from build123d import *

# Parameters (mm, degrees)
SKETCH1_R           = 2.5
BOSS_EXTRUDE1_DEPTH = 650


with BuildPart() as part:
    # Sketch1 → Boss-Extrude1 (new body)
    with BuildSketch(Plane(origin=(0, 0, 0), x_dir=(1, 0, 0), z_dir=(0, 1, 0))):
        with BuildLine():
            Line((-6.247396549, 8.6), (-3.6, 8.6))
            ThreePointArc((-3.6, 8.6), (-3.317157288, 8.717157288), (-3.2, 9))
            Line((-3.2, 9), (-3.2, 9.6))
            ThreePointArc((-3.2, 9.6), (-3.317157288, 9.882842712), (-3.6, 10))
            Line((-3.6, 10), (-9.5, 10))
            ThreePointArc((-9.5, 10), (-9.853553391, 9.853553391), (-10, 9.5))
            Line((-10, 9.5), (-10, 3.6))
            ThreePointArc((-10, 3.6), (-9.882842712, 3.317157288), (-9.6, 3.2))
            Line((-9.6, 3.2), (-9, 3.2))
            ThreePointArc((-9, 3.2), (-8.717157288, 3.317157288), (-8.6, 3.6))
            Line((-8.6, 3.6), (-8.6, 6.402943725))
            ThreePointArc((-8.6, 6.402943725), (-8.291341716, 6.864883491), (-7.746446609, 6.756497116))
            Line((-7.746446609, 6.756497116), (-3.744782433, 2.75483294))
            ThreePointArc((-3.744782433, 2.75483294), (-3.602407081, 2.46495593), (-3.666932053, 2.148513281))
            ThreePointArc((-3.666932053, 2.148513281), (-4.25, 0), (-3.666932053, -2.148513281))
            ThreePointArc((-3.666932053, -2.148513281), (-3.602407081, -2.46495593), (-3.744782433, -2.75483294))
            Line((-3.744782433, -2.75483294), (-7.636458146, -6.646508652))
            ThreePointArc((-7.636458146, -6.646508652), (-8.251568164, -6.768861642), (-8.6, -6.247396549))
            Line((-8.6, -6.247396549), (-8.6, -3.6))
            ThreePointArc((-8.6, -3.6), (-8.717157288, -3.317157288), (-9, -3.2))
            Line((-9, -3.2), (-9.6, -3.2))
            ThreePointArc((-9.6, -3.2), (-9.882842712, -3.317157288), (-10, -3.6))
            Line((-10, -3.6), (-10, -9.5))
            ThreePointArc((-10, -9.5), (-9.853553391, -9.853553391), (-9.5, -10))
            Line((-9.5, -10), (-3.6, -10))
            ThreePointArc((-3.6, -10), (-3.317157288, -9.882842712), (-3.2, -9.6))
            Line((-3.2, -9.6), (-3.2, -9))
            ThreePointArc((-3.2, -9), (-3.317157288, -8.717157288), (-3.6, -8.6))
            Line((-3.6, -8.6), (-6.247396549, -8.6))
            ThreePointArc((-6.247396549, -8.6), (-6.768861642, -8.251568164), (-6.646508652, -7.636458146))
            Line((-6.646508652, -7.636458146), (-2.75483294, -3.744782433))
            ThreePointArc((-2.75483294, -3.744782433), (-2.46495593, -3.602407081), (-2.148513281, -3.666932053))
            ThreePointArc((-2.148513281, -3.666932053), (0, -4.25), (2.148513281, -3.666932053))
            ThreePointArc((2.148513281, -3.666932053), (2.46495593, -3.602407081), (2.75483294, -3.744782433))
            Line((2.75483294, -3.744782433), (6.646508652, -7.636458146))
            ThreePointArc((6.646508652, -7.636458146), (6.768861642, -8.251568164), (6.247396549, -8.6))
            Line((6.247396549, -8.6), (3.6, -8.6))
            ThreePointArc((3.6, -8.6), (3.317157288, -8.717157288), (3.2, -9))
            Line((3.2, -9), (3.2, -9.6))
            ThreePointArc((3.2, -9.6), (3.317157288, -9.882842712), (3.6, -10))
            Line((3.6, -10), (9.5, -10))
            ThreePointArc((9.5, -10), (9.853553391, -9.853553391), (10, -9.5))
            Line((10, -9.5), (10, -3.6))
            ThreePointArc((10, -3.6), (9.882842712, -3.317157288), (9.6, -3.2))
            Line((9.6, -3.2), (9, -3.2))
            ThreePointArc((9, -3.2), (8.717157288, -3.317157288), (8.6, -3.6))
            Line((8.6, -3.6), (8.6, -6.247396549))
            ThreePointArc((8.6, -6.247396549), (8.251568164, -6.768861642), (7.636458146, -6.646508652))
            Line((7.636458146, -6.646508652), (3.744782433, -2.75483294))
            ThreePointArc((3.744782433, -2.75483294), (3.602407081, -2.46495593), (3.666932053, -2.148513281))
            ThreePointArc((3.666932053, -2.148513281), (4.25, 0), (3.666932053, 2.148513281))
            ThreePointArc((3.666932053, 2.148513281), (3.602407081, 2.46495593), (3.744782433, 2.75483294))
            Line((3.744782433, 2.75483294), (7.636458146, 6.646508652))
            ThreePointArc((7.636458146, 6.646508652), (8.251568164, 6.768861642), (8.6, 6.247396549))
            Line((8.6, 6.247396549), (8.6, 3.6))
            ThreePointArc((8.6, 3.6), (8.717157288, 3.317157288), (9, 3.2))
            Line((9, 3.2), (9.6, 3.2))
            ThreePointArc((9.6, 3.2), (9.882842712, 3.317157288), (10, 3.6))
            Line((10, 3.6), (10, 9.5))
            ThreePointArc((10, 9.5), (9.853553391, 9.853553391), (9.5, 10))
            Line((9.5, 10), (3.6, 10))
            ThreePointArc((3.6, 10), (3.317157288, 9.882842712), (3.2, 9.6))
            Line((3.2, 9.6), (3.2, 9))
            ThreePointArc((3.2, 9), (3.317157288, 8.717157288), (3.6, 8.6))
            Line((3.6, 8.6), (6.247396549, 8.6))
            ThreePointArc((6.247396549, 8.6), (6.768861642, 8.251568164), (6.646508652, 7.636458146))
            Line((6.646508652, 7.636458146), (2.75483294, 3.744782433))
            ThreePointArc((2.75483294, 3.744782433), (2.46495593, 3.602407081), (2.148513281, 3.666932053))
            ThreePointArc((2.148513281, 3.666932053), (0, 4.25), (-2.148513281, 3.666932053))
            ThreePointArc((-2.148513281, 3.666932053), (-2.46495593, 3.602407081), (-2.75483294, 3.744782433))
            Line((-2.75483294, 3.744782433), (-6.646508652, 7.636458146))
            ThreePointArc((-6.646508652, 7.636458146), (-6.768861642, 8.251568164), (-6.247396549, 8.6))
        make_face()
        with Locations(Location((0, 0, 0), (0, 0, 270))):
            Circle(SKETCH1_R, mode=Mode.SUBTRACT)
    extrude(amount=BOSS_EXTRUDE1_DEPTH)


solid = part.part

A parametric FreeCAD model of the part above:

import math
import FreeCAD as App
import Part
import Sketcher
from FreeCAD import Vector
Q = App.Units.Quantity

doc = App.newDocument("Part")
params = doc.addObject("Spreadsheet::Sheet", "Params")
for row, (alias, value) in enumerate([
    ("sketch1_diameter", "5 mm"),
    ("sketch1_radius", "0.4 mm"),
    ("sketch1_radius2", "0.5 mm"),
    ("sketch1_radius3", "4.25 mm"),
    ("sketch1_width", "5.9 mm"),
    ("pad1_length", "650 mm"),
], start=1):
    params.set(f"A{row}", alias)
    params.set(f"B{row}", "=" + value)
    params.setAlias(f"B{row}", alias)

body = doc.addObject("PartDesign::Body", "Body")

# Sketch on XZ plane
sketch1 = doc.addObject("Sketcher::SketchObject", "Sketch")
body.addObject(sketch1)
sketch1.AttachmentSupport = (doc.XZ_Plane, [""])
sketch1.MapMode = "FlatFace"
sketch1.addGeometry(Part.LineSegment(Vector(-6.25, -8.6, 0), Vector(-3.6, -8.6, 0)), False)
sketch1.addGeometry(Part.ArcOfCircle(Part.Circle(Vector(-3.6, -9, 0), Vector(0, 0, 1), 0.4), math.radians(0), math.radians(90)), False)
sketch1.addGeometry(Part.LineSegment(Vector(-3.2, -9, 0), Vector(-3.2, -9.6, 0)), False)
sketch1.addGeometry(Part.ArcOfCircle(Part.Circle(Vector(-3.6, -9.6, 0), Vector(0, 0, 1), 0.4), math.radians(-90), math.radians(0)), False)
sketch1.addGeometry(Part.LineSegment(Vector(-3.6, -10, 0), Vector(-9.5, -10, 0)), False)
sketch1.addGeometry(Part.ArcOfCircle(Part.Circle(Vector(-9.5, -9.5, 0), Vector(0, 0, 1), 0.5), math.radians(180), math.radians(270)), False)
sketch1.addGeometry(Part.LineSegment(Vector(-10, -9.5, 0), Vector(-10, -3.6, 0)), False)
sketch1.addGeometry(Part.ArcOfCircle(Part.Circle(Vector(-9.6, -3.6, 0), Vector(0, 0, 1), 0.4), math.radians(90), math.radians(180)), False)
sketch1.addGeometry(Part.LineSegment(Vector(-9.6, -3.2, 0), Vector(-9, -3.2, 0)), False)
sketch1.addGeometry(Part.ArcOfCircle(Part.Circle(Vector(-9, -3.6, 0), Vector(0, 0, 1), 0.4), math.radians(0), math.radians(90)), False)
sketch1.addGeometry(Part.LineSegment(Vector(-8.6, -3.6, 0), Vector(-8.6, -6.4, 0)), False)
sketch1.addGeometry(Part.ArcOfCircle(Part.Circle(Vector(-8.1, -6.4, 0), Vector(0, 0, 1), 0.5), math.radians(-180), math.radians(-45)), False)
sketch1.addGeometry(Part.LineSegment(Vector(-7.75, -6.76, 0), Vector(-3.74, -2.75, 0)), False)
sketch1.addGeometry(Part.ArcOfCircle(Part.Circle(Vector(-4.1, -2.4, 0), Vector(0, 0, 1), 0.5), math.radians(-45), math.radians(30)), False)
sketch1.addGeometry(Part.ArcOfCircle(Part.Circle(Vector(0, 0, 0), Vector(0, 0, 1), 4.25), math.radians(150), math.radians(210)), False)
sketch1.addGeometry(Part.ArcOfCircle(Part.Circle(Vector(-4.1, 2.4, 0), Vector(0, 0, 1), 0.5), math.radians(-30), math.radians(45)), False)
sketch1.addGeometry(Part.LineSegment(Vector(-3.74, 2.75, 0), Vector(-7.64, 6.65, 0)), False)
sketch1.addGeometry(Part.ArcOfCircle(Part.Circle(Vector(-8.04, 6.25, 0), Vector(0, 0, 1), 0.56), math.radians(45), math.radians(180)), False)
sketch1.addGeometry(Part.LineSegment(Vector(-8.6, 6.25, 0), Vector(-8.6, 3.6, 0)), False)
sketch1.addGeometry(Part.ArcOfCircle(Part.Circle(Vector(-9, 3.6, 0), Vector(0, 0, 1), 0.4), math.radians(-90), math.radians(0)), False)
sketch1.addGeometry(Part.LineSegment(Vector(-9, 3.2, 0), Vector(-9.6, 3.2, 0)), False)
sketch1.addGeometry(Part.ArcOfCircle(Part.Circle(Vector(-9.6, 3.6, 0), Vector(0, 0, 1), 0.4), math.radians(-180), math.radians(-90)), False)
sketch1.addGeometry(Part.LineSegment(Vector(-10, 3.6, 0), Vector(-10, 9.5, 0)), False)
sketch1.addGeometry(Part.ArcOfCircle(Part.Circle(Vector(-9.5, 9.5, 0), Vector(0, 0, 1), 0.5), math.radians(90), math.radians(180)), False)
sketch1.addGeometry(Part.LineSegment(Vector(-9.5, 10, 0), Vector(-3.6, 10, 0)), False)
sketch1.addGeometry(Part.ArcOfCircle(Part.Circle(Vector(-3.6, 9.6, 0), Vector(0, 0, 1), 0.4), math.radians(0), math.radians(90)), False)
sketch1.addGeometry(Part.LineSegment(Vector(-3.2, 9.6, 0), Vector(-3.2, 9, 0)), False)
sketch1.addGeometry(Part.ArcOfCircle(Part.Circle(Vector(-3.6, 9, 0), Vector(0, 0, 1), 0.4), math.radians(-90), math.radians(0)), False)
sketch1.addGeometry(Part.LineSegment(Vector(-3.6, 8.6, 0), Vector(-6.25, 8.6, 0)), False)
sketch1.addGeometry(Part.ArcOfCircle(Part.Circle(Vector(-6.25, 8.04, 0), Vector(0, 0, 1), 0.56), math.radians(90), math.radians(225)), False)
sketch1.addGeometry(Part.LineSegment(Vector(-6.65, 7.64, 0), Vector(-2.75, 3.74, 0)), False)
sketch1.addGeometry(Part.ArcOfCircle(Part.Circle(Vector(-2.4, 4.1, 0), Vector(0, 0, 1), 0.5), math.radians(-135), math.radians(-60)), False)
sketch1.addGeometry(Part.ArcOfCircle(Part.Circle(Vector(0, 0, 0), Vector(0, 0, 1), 4.25), math.radians(60), math.radians(120)), False)
sketch1.addGeometry(Part.ArcOfCircle(Part.Circle(Vector(2.4, 4.1, 0), Vector(0, 0, 1), 0.5), math.radians(-120), math.radians(-45)), False)
sketch1.addGeometry(Part.LineSegment(Vector(2.75, 3.74, 0), Vector(6.65, 7.64, 0)), False)
sketch1.addGeometry(Part.ArcOfCircle(Part.Circle(Vector(6.25, 8.04, 0), Vector(0, 0, 1), 0.56), math.radians(-45), math.radians(90)), False)
sketch1.addGeometry(Part.LineSegment(Vector(6.25, 8.6, 0), Vector(3.6, 8.6, 0)), False)
sketch1.addGeometry(Part.ArcOfCircle(Part.Circle(Vector(3.6, 9, 0), Vector(0, 0, 1), 0.4), math.radians(-180), math.radians(-90)), False)
sketch1.addGeometry(Part.LineSegment(Vector(3.2, 9, 0), Vector(3.2, 9.6, 0)), False)
sketch1.addGeometry(Part.ArcOfCircle(Part.Circle(Vector(3.6, 9.6, 0), Vector(0, 0, 1), 0.4), math.radians(90), math.radians(180)), False)
sketch1.addGeometry(Part.LineSegment(Vector(3.6, 10, 0), Vector(9.5, 10, 0)), False)
sketch1.addGeometry(Part.ArcOfCircle(Part.Circle(Vector(9.5, 9.5, 0), Vector(0, 0, 1), 0.5), math.radians(0), math.radians(90)), False)
sketch1.addGeometry(Part.LineSegment(Vector(10, 9.5, 0), Vector(10, 3.6, 0)), False)
sketch1.addGeometry(Part.ArcOfCircle(Part.Circle(Vector(9.6, 3.6, 0), Vector(0, 0, 1), 0.4), math.radians(-90), math.radians(0)), False)
sketch1.addGeometry(Part.LineSegment(Vector(9.6, 3.2, 0), Vector(9, 3.2, 0)), False)
sketch1.addGeometry(Part.ArcOfCircle(Part.Circle(Vector(9, 3.6, 0), Vector(0, 0, 1), 0.4), math.radians(-180), math.radians(-90)), False)
sketch1.addGeometry(Part.LineSegment(Vector(8.6, 3.6, 0), Vector(8.6, 6.25, 0)), False)
sketch1.addGeometry(Part.ArcOfCircle(Part.Circle(Vector(8.04, 6.25, 0), Vector(0, 0, 1), 0.56), math.radians(0), math.radians(135)), False)
sketch1.addGeometry(Part.LineSegment(Vector(7.64, 6.65, 0), Vector(3.74, 2.75, 0)), False)
sketch1.addGeometry(Part.ArcOfCircle(Part.Circle(Vector(4.1, 2.4, 0), Vector(0, 0, 1), 0.5), math.radians(135), math.radians(210)), False)
sketch1.addGeometry(Part.ArcOfCircle(Part.Circle(Vector(0, 0, 0), Vector(0, 0, 1), 4.25), math.radians(-30), math.radians(30)), False)
sketch1.addGeometry(Part.ArcOfCircle(Part.Circle(Vector(4.1, -2.4, 0), Vector(0, 0, 1), 0.5), math.radians(150), math.radians(225)), False)
sketch1.addGeometry(Part.LineSegment(Vector(3.74, -2.75, 0), Vector(7.64, -6.65, 0)), False)
sketch1.addGeometry(Part.ArcOfCircle(Part.Circle(Vector(8.04, -6.25, 0), Vector(0, 0, 1), 0.56), math.radians(-135), math.radians(0)), False)
sketch1.addGeometry(Part.LineSegment(Vector(8.6, -6.25, 0), Vector(8.6, -3.6, 0)), False)
sketch1.addGeometry(Part.ArcOfCircle(Part.Circle(Vector(9, -3.6, 0), Vector(0, 0, 1), 0.4), math.radians(90), math.radians(180)), False)
sketch1.addGeometry(Part.LineSegment(Vector(9, -3.2, 0), Vector(9.6, -3.2, 0)), False)
sketch1.addGeometry(Part.ArcOfCircle(Part.Circle(Vector(9.6, -3.6, 0), Vector(0, 0, 1), 0.4), math.radians(0), math.radians(90)), False)
sketch1.addGeometry(Part.LineSegment(Vector(10, -3.6, 0), Vector(10, -9.5, 0)), False)
sketch1.addGeometry(Part.ArcOfCircle(Part.Circle(Vector(9.5, -9.5, 0), Vector(0, 0, 1), 0.5), math.radians(-90), math.radians(0)), False)
sketch1.addGeometry(Part.LineSegment(Vector(9.5, -10, 0), Vector(3.6, -10, 0)), False)
sketch1.addGeometry(Part.ArcOfCircle(Part.Circle(Vector(3.6, -9.6, 0), Vector(0, 0, 1), 0.4), math.radians(-180), math.radians(-90)), False)
sketch1.addGeometry(Part.LineSegment(Vector(3.2, -9.6, 0), Vector(3.2, -9, 0)), False)
sketch1.addGeometry(Part.ArcOfCircle(Part.Circle(Vector(3.6, -9, 0), Vector(0, 0, 1), 0.4), math.radians(90), math.radians(180)), False)
sketch1.addGeometry(Part.LineSegment(Vector(3.6, -8.6, 0), Vector(6.25, -8.6, 0)), False)
sketch1.addGeometry(Part.ArcOfCircle(Part.Circle(Vector(6.25, -8.04, 0), Vector(0, 0, 1), 0.56), math.radians(-90), math.radians(45)), False)
sketch1.addGeometry(Part.LineSegment(Vector(6.65, -7.64, 0), Vector(2.75, -3.74, 0)), False)
sketch1.addGeometry(Part.ArcOfCircle(Part.Circle(Vector(2.4, -4.1, 0), Vector(0, 0, 1), 0.5), math.radians(45), math.radians(120)), False)
sketch1.addGeometry(Part.ArcOfCircle(Part.Circle(Vector(0, 0, 0), Vector(0, 0, 1), 4.25), math.radians(-120), math.radians(-60)), False)
sketch1.addGeometry(Part.ArcOfCircle(Part.Circle(Vector(-2.4, -4.1, 0), Vector(0, 0, 1), 0.5), math.radians(60), math.radians(135)), False)
sketch1.addGeometry(Part.LineSegment(Vector(-2.75, -3.74, 0), Vector(-6.65, -7.64, 0)), False)
sketch1.addGeometry(Part.ArcOfCircle(Part.Circle(Vector(-6.25, -8.04, 0), Vector(0, 0, 1), 0.56), math.radians(135), math.radians(270)), False)
sketch1.addGeometry(Part.Circle(Vector(0, 0, 0), Vector(0, 0, 1), 2.5), False)
sketch1.addConstraint(Sketcher.Constraint("Tangent", 0, 2, 1, 2))
sketch1.addConstraint(Sketcher.Constraint("Tangent", 1, 1, 2, 1))
sketch1.addConstraint(Sketcher.Constraint("Tangent", 2, 2, 3, 2))
sketch1.addConstraint(Sketcher.Constraint("Tangent", 3, 1, 4, 1))
sketch1.addConstraint(Sketcher.Constraint("Tangent", 4, 2, 5, 2))
sketch1.addConstraint(Sketcher.Constraint("Tangent", 5, 1, 6, 1))
sketch1.addConstraint(Sketcher.Constraint("Tangent", 6, 2, 7, 2))
sketch1.addConstraint(Sketcher.Constraint("Tangent", 7, 1, 8, 1))
sketch1.addConstraint(Sketcher.Constraint("Tangent", 8, 2, 9, 2))
sketch1.addConstraint(Sketcher.Constraint("Tangent", 9, 1, 10, 1))
sketch1.addConstraint(Sketcher.Constraint("Tangent", 10, 2, 11, 1))
sketch1.addConstraint(Sketcher.Constraint("Tangent", 11, 2, 12, 1))
sketch1.addConstraint(Sketcher.Constraint("Tangent", 12, 2, 13, 1))
sketch1.addConstraint(Sketcher.Constraint("Tangent", 13, 2, 14, 2))
sketch1.addConstraint(Sketcher.Constraint("Tangent", 14, 1, 15, 1))
sketch1.addConstraint(Sketcher.Constraint("Tangent", 15, 2, 16, 1))
sketch1.addConstraint(Sketcher.Constraint("Tangent", 16, 2, 17, 1))
sketch1.addConstraint(Sketcher.Constraint("Tangent", 17, 2, 18, 1))
sketch1.addConstraint(Sketcher.Constraint("Tangent", 18, 2, 19, 2))
sketch1.addConstraint(Sketcher.Constraint("Tangent", 19, 1, 20, 1))
sketch1.addConstraint(Sketcher.Constraint("Tangent", 20, 2, 21, 2))
sketch1.addConstraint(Sketcher.Constraint("Tangent", 21, 1, 22, 1))
sketch1.addConstraint(Sketcher.Constraint("Tangent", 22, 2, 23, 2))
sketch1.addConstraint(Sketcher.Constraint("Tangent", 23, 1, 24, 1))
sketch1.addConstraint(Sketcher.Constraint("Tangent", 24, 2, 25, 2))
sketch1.addConstraint(Sketcher.Constraint("Tangent", 25, 1, 26, 1))
sketch1.addConstraint(Sketcher.Constraint("Tangent", 26, 2, 27, 2))
sketch1.addConstraint(Sketcher.Constraint("Tangent", 27, 1, 28, 1))
sketch1.addConstraint(Sketcher.Constraint("Tangent", 28, 2, 29, 1))
sketch1.addConstraint(Sketcher.Constraint("Tangent", 29, 2, 30, 1))
sketch1.addConstraint(Sketcher.Constraint("Tangent", 30, 2, 31, 1))
sketch1.addConstraint(Sketcher.Constraint("Tangent", 31, 2, 32, 2))
sketch1.addConstraint(Sketcher.Constraint("Tangent", 32, 1, 33, 1))
sketch1.addConstraint(Sketcher.Constraint("Tangent", 33, 2, 34, 1))
sketch1.addConstraint(Sketcher.Constraint("Tangent", 34, 2, 35, 1))
sketch1.addConstraint(Sketcher.Constraint("Tangent", 35, 2, 36, 1))
sketch1.addConstraint(Sketcher.Constraint("Tangent", 36, 2, 37, 2))
sketch1.addConstraint(Sketcher.Constraint("Tangent", 37, 1, 38, 1))
sketch1.addConstraint(Sketcher.Constraint("Tangent", 38, 2, 39, 2))
sketch1.addConstraint(Sketcher.Constraint("Tangent", 39, 1, 40, 1))
sketch1.addConstraint(Sketcher.Constraint("Tangent", 40, 2, 41, 2))
sketch1.addConstraint(Sketcher.Constraint("Tangent", 41, 1, 42, 1))
sketch1.addConstraint(Sketcher.Constraint("Tangent", 42, 2, 43, 2))
sketch1.addConstraint(Sketcher.Constraint("Tangent", 43, 1, 44, 1))
sketch1.addConstraint(Sketcher.Constraint("Tangent", 44, 2, 45, 2))
sketch1.addConstraint(Sketcher.Constraint("Tangent", 45, 1, 46, 1))
sketch1.addConstraint(Sketcher.Constraint("Tangent", 46, 2, 47, 1))
sketch1.addConstraint(Sketcher.Constraint("Tangent", 47, 2, 48, 1))
sketch1.addConstraint(Sketcher.Constraint("Tangent", 48, 2, 49, 1))
sketch1.addConstraint(Sketcher.Constraint("Tangent", 49, 2, 50, 2))
sketch1.addConstraint(Sketcher.Constraint("Tangent", 50, 1, 51, 1))
sketch1.addConstraint(Sketcher.Constraint("Tangent", 51, 2, 52, 1))
sketch1.addConstraint(Sketcher.Constraint("Tangent", 52, 2, 53, 1))
sketch1.addConstraint(Sketcher.Constraint("Tangent", 53, 2, 54, 1))
sketch1.addConstraint(Sketcher.Constraint("Tangent", 54, 2, 55, 2))
sketch1.addConstraint(Sketcher.Constraint("Tangent", 55, 1, 56, 1))
sketch1.addConstraint(Sketcher.Constraint("Tangent", 56, 2, 57, 2))
sketch1.addConstraint(Sketcher.Constraint("Tangent", 57, 1, 58, 1))
sketch1.addConstraint(Sketcher.Constraint("Tangent", 58, 2, 59, 2))
sketch1.addConstraint(Sketcher.Constraint("Tangent", 59, 1, 60, 1))
sketch1.addConstraint(Sketcher.Constraint("Tangent", 60, 2, 61, 2))
sketch1.addConstraint(Sketcher.Constraint("Tangent", 61, 1, 62, 1))
sketch1.addConstraint(Sketcher.Constraint("Tangent", 62, 2, 63, 2))
sketch1.addConstraint(Sketcher.Constraint("Tangent", 63, 1, 64, 1))
sketch1.addConstraint(Sketcher.Constraint("Tangent", 64, 2, 65, 1))
sketch1.addConstraint(Sketcher.Constraint("Tangent", 65, 2, 66, 1))
sketch1.addConstraint(Sketcher.Constraint("Tangent", 66, 2, 67, 1))
sketch1.addConstraint(Sketcher.Constraint("Tangent", 67, 2, 68, 2))
sketch1.addConstraint(Sketcher.Constraint("Tangent", 68, 1, 69, 1))
sketch1.addConstraint(Sketcher.Constraint("Tangent", 69, 2, 70, 1))
sketch1.addConstraint(Sketcher.Constraint("Tangent", 70, 2, 71, 1))
sketch1.addConstraint(Sketcher.Constraint("Tangent", 71, 2, 0, 1))
sketch1.addConstraint(Sketcher.Constraint("Horizontal", 0))
sketch1.addConstraint(Sketcher.Constraint("Vertical", 2))
sketch1.addConstraint(Sketcher.Constraint("Horizontal", 4))
sketch1.addConstraint(Sketcher.Constraint("Vertical", 6))
sketch1.addConstraint(Sketcher.Constraint("Horizontal", 8))
sketch1.addConstraint(Sketcher.Constraint("Vertical", 10))
sketch1.addConstraint(Sketcher.Constraint("Vertical", 18))
sketch1.addConstraint(Sketcher.Constraint("Horizontal", 20))
sketch1.addConstraint(Sketcher.Constraint("Vertical", 22))
sketch1.addConstraint(Sketcher.Constraint("Horizontal", 24))
sketch1.addConstraint(Sketcher.Constraint("Vertical", 26))
sketch1.addConstraint(Sketcher.Constraint("Horizontal", 28))
sketch1.addConstraint(Sketcher.Constraint("Horizontal", 36))
sketch1.addConstraint(Sketcher.Constraint("Vertical", 38))
sketch1.addConstraint(Sketcher.Constraint("Horizontal", 40))
sketch1.addConstraint(Sketcher.Constraint("Vertical", 42))
sketch1.addConstraint(Sketcher.Constraint("Horizontal", 44))
sketch1.addConstraint(Sketcher.Constraint("Vertical", 46))
sketch1.addConstraint(Sketcher.Constraint("Vertical", 54))
sketch1.addConstraint(Sketcher.Constraint("Horizontal", 56))
sketch1.addConstraint(Sketcher.Constraint("Vertical", 58))
sketch1.addConstraint(Sketcher.Constraint("Horizontal", 60))
sketch1.addConstraint(Sketcher.Constraint("Vertical", 62))
sketch1.addConstraint(Sketcher.Constraint("Horizontal", 64))
sketch1.addConstraint(Sketcher.Constraint("Coincident", 14, 3, -1, 1))
sketch1.addConstraint(Sketcher.Constraint("Coincident", 32, 3, -1, 1))
sketch1.addConstraint(Sketcher.Constraint("Coincident", 50, 3, -1, 1))
sketch1.addConstraint(Sketcher.Constraint("Coincident", 68, 3, -1, 1))
sketch1.addConstraint(Sketcher.Constraint("Coincident", 72, 3, -1, 1))
sketch1.addConstraint(Sketcher.Constraint("Equal", 1, 3))
sketch1.addConstraint(Sketcher.Constraint("Equal", 3, 7))
sketch1.addConstraint(Sketcher.Constraint("Equal", 7, 9))
sketch1.addConstraint(Sketcher.Constraint("Equal", 5, 11))
sketch1.addConstraint(Sketcher.Constraint("Equal", 11, 13))
sketch1.addConstraint(Sketcher.Constraint("Equal", 13, 15))
sketch1.addConstraint(Sketcher.Constraint("Equal", 9, 19))
sketch1.addConstraint(Sketcher.Constraint("Equal", 19, 21))
sketch1.addConstraint(Sketcher.Constraint("Equal", 15, 23))
sketch1.addConstraint(Sketcher.Constraint("Equal", 21, 25))
sketch1.addConstraint(Sketcher.Constraint("Equal", 25, 27))
sketch1.addConstraint(Sketcher.Constraint("Equal", 17, 29))
sketch1.addConstraint(Sketcher.Constraint("Equal", 23, 31))
sketch1.addConstraint(Sketcher.Constraint("Equal", 14, 32))
sketch1.addConstraint(Sketcher.Constraint("Equal", 31, 33))
sketch1.addConstraint(Sketcher.Constraint("Equal", 29, 35))
sketch1.addConstraint(Sketcher.Constraint("Equal", 27, 37))
sketch1.addConstraint(Sketcher.Constraint("Equal", 37, 39))
sketch1.addConstraint(Sketcher.Constraint("Equal", 33, 41))
sketch1.addConstraint(Sketcher.Constraint("Equal", 39, 43))
sketch1.addConstraint(Sketcher.Constraint("Equal", 43, 45))
sketch1.addConstraint(Sketcher.Constraint("Equal", 35, 47))
sketch1.addConstraint(Sketcher.Constraint("Equal", 41, 49))
sketch1.addConstraint(Sketcher.Constraint("Equal", 32, 50))
sketch1.addConstraint(Sketcher.Constraint("Equal", 49, 51))
sketch1.addConstraint(Sketcher.Constraint("Equal", 47, 53))
sketch1.addConstraint(Sketcher.Constraint("Equal", 45, 55))
sketch1.addConstraint(Sketcher.Constraint("Equal", 55, 57))
sketch1.addConstraint(Sketcher.Constraint("Equal", 51, 59))
sketch1.addConstraint(Sketcher.Constraint("Equal", 57, 61))
sketch1.addConstraint(Sketcher.Constraint("Equal", 61, 63))
sketch1.addConstraint(Sketcher.Constraint("Equal", 53, 65))
sketch1.addConstraint(Sketcher.Constraint("Equal", 59, 67))
sketch1.addConstraint(Sketcher.Constraint("Equal", 50, 68))
sketch1.addConstraint(Sketcher.Constraint("Equal", 67, 69))
sketch1.addConstraint(Sketcher.Constraint("Equal", 65, 71))
sketch1.addConstraint(Sketcher.Constraint("Symmetric", 1, 3, 37, 3, -1, 1))
sketch1.addConstraint(Sketcher.Constraint("Symmetric", 5, 3, 41, 3, -1, 1))
sketch1.addConstraint(Sketcher.Constraint("Symmetric", 9, 3, 45, 3, -1, 1))
sketch1.addConstraint(Sketcher.Constraint("Symmetric", 17, 3, 53, 3, -1, 1))
sketch1.addConstraint(Sketcher.Constraint("Symmetric", 21, 3, 57, 3, -1, 1))
sketch1.addConstraint(Sketcher.Constraint("Symmetric", 25, 3, 61, 3, -1, 1))
sketch1.addConstraint(Sketcher.Constraint("Symmetric", 29, 3, 65, 3, -1, 1))
sketch1.addConstraint(Sketcher.Constraint("Symmetric", 12, 2, 48, 2, -1, 1))
sketch1.addConstraint(Sketcher.Constraint("Symmetric", 33, 2, 69, 2, -1, 1))
sketch1.addConstraint(Sketcher.Constraint("Symmetric", 29, 3, 35, 3, -2))
sketch1.addConstraint(Sketcher.Constraint("Symmetric", 25, 3, 39, 3, -2))
sketch1.addConstraint(Sketcher.Constraint("Symmetric", 21, 3, 43, 3, -2))
sketch1.addConstraint(Sketcher.Constraint("Symmetric", 17, 3, 47, 3, -2))
sketch1.addConstraint(Sketcher.Constraint("Perpendicular", 12, 16))
sketch1.addConstraint(Sketcher.Constraint("Parallel", 16, 30))
sketch1.addConstraint(Sketcher.Constraint("Perpendicular", 30, 34))
sketch1.addConstraint(Sketcher.Constraint("Perpendicular", 48, 52))
sketch1.addConstraint(Sketcher.Constraint("Parallel", 52, 66))
sketch1.addConstraint(Sketcher.Constraint("Horizontal", 31, 3, 33, 3))
sketch1.addConstraint(Sketcher.Constraint("Equal", 56, 2))
sketch1.addConstraint(Sketcher.Constraint("Equal", 60, 6))
sketch1.addConstraint(Sketcher.Constraint("Equal", 64, 18))
sketch1.addConstraint(Sketcher.Constraint("Equal", 16, 30))
sketch1.addConstraint(Sketcher.Constraint("Diameter", 72, Q("5 mm")))
sketch1.addConstraint(Sketcher.Constraint("Radius", 1, Q("0.4 mm")))
sketch1.addConstraint(Sketcher.Constraint("Radius", 5, Q("0.5 mm")))
sketch1.addConstraint(Sketcher.Constraint("Radius", 14, Q("4.25 mm")))
sketch1.addConstraint(Sketcher.Constraint("DistanceX", 4, 2, 4, 1, Q("5.9 mm")))
sketch1.addConstraint(Sketcher.Constraint("DistanceX", 8, 1, 8, 2, Q("0.6 mm")))
sketch1.addConstraint(Sketcher.Constraint("DistanceY", 1, 3, -1, 1, Q("9 mm")))
sketch1.addConstraint(Sketcher.Constraint("Radius", 17, Q("0.56443 mm")))
sketch1.addConstraint(Sketcher.Constraint("Distance", 16, Q("5.503661 mm")))
sketch1.setExpression("Constraints[160]", "Params.sketch1_diameter")
sketch1.setExpression("Constraints[161]", "Params.sketch1_radius")
sketch1.setExpression("Constraints[162]", "Params.sketch1_radius2")
sketch1.setExpression("Constraints[163]", "Params.sketch1_radius3")
sketch1.setExpression("Constraints[164]", "Params.sketch1_width")
pad1 = doc.addObject("PartDesign::Pad", "Pad")
body.addObject(pad1)
pad1.Profile = sketch1
pad1.setExpression("Length", "Params.pad1_length")
pad1.Reversed = True

doc.recompute()
